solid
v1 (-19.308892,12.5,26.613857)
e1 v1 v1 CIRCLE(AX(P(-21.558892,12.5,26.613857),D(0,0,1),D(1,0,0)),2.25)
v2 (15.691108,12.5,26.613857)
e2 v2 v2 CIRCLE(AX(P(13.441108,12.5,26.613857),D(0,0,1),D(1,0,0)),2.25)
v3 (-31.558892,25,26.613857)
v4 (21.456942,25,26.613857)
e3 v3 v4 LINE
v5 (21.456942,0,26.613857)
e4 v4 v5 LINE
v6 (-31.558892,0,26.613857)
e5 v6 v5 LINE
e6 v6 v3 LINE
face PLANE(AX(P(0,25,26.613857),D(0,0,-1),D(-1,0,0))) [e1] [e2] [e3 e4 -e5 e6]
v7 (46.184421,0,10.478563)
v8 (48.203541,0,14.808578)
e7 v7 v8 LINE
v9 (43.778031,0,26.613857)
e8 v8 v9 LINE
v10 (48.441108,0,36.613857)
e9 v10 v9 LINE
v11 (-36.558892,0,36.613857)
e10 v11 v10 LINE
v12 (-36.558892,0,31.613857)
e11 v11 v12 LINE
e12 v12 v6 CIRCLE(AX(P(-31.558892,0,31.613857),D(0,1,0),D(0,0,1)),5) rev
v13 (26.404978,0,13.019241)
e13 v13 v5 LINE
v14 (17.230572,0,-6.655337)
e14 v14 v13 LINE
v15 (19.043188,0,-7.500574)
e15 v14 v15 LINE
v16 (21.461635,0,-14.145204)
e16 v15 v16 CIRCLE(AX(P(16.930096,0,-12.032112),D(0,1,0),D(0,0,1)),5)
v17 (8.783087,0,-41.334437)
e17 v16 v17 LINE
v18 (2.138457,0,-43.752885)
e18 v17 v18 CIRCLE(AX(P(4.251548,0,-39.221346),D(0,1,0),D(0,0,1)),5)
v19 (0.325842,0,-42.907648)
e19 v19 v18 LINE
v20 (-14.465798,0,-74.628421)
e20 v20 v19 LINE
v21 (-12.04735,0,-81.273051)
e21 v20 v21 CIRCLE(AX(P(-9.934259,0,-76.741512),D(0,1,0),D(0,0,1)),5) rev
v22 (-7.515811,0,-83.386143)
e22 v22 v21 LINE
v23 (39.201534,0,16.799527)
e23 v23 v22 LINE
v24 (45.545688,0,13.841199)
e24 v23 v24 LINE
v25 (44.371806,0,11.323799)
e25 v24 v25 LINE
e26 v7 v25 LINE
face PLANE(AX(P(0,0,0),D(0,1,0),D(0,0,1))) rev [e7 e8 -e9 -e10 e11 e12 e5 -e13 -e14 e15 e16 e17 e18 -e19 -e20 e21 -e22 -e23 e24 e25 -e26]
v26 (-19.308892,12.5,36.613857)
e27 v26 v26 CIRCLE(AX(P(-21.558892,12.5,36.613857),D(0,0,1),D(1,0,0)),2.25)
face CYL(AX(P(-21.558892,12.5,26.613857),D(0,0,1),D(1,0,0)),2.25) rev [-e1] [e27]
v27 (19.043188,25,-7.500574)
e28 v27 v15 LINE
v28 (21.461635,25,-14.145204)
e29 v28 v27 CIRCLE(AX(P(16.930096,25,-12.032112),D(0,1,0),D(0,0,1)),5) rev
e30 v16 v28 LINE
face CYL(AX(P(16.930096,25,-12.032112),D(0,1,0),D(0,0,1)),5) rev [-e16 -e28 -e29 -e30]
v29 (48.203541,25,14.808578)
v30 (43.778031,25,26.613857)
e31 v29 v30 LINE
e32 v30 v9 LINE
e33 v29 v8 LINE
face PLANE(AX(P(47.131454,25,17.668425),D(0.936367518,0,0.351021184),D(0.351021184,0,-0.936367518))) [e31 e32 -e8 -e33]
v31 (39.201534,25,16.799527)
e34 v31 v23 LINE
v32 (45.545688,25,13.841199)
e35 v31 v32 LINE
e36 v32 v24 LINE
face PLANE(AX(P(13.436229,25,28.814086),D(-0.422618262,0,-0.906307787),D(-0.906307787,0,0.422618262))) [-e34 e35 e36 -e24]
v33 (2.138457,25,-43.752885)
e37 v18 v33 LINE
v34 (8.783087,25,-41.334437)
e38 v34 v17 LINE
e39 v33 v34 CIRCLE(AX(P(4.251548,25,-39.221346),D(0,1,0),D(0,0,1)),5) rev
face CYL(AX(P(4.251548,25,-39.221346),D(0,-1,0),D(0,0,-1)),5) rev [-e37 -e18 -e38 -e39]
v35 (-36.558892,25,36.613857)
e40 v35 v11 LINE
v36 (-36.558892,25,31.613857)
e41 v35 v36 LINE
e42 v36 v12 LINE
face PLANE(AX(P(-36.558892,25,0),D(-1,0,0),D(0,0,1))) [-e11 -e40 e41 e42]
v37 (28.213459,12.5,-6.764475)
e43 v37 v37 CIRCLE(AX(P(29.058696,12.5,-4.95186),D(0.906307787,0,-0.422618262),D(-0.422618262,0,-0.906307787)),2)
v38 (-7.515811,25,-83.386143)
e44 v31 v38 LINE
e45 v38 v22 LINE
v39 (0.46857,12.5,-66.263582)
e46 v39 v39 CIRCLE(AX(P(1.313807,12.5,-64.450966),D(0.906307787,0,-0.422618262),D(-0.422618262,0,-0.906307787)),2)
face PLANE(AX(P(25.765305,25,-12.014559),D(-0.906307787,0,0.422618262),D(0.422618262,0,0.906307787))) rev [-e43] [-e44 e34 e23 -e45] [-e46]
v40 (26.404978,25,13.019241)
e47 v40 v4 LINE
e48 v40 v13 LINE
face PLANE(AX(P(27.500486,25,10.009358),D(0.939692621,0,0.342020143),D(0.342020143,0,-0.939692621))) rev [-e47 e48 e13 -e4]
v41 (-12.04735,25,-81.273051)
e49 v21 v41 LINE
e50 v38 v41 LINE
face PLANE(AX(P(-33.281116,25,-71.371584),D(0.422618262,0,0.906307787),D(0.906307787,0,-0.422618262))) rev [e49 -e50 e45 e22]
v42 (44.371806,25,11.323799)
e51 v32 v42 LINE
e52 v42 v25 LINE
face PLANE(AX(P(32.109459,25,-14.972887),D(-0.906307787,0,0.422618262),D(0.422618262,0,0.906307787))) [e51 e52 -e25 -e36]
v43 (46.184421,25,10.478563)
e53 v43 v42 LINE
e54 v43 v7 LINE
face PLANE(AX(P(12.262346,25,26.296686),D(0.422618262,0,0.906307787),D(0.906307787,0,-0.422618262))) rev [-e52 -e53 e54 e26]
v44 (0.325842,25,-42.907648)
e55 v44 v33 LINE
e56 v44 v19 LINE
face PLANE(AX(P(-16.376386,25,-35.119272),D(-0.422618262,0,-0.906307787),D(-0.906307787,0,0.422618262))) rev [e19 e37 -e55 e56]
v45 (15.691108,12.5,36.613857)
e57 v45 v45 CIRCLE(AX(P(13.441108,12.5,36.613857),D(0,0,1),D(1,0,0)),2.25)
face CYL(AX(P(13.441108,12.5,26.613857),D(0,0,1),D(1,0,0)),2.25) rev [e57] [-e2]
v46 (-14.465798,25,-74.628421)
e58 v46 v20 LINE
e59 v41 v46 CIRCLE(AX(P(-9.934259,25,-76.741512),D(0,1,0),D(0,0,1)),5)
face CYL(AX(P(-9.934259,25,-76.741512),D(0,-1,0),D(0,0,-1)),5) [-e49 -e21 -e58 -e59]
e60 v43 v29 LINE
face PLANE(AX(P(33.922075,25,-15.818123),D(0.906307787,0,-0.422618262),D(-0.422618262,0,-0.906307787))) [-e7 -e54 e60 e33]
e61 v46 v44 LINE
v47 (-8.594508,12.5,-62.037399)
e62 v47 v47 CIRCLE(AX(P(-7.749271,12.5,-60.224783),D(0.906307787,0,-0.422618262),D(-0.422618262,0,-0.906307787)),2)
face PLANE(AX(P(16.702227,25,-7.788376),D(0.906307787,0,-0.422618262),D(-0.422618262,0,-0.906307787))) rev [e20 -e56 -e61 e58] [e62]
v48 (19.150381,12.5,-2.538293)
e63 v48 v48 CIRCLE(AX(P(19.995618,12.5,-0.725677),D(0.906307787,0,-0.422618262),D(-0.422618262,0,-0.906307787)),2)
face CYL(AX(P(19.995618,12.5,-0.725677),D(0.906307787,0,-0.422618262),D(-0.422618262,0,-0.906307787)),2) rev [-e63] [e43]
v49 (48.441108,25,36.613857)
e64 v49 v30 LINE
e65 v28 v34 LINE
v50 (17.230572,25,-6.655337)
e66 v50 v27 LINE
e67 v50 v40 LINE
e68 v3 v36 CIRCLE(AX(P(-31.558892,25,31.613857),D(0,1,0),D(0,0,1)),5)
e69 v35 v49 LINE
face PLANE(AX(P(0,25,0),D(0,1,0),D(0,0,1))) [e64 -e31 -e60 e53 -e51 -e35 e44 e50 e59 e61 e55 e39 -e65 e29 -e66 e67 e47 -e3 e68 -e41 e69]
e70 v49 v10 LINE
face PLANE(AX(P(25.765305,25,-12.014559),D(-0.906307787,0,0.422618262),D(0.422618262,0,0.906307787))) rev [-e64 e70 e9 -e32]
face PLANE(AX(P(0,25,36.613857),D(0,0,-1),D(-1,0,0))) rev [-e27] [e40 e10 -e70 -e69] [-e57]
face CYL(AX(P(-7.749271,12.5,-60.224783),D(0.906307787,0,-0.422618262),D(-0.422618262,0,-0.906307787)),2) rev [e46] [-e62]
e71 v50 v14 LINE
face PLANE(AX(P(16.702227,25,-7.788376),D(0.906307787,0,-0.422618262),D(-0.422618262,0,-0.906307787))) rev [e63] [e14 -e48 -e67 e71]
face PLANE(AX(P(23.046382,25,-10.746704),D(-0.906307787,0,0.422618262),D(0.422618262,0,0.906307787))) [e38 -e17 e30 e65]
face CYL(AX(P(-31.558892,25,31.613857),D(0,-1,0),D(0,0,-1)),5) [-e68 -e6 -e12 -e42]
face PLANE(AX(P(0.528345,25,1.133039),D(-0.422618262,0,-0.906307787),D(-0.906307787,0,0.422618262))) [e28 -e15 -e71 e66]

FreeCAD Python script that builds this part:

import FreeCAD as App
import Part
import Sketcher

V = App.Vector
Q = App.Units.Quantity


def edges_at(feature, points):
    """Names of the edges that pass closest to the given points."""
    edges = feature.Shape.Edges
    near = lambda p: min(range(len(edges)), key=lambda i: edges[i].distToShape(Part.Vertex(*p))[0])
    return sorted({f"Edge{near(p) + 1}" for p in points})

doc = App.newDocument("Part")
params = doc.addObject("Spreadsheet::Sheet", "Params")
for row, (alias, value) in enumerate([
    ("sketch1_width", "85 mm"),
    ("sketch1_height", "10 mm"),
    ("sketch1_length", "2 mm"),
    ("sketch1_length2", "7 mm"),
    ("sketch1_length3", "10 mm"),
    ("pad1_length", "25 mm"),
    ("fillet_radius", "5 mm"),
    ("fillet2_radius", "5 mm"),
    ("fillet3_radius", "5 mm"),
    ("fillet4_radius", "5 mm"),
    ("sketch2_diameter", "4 mm"),
    ("pocket1_length", "10 mm"),
    ("sketch3_diameter", "4.5 mm"),
    ("pocket2_length", "10 mm"),
], start=1):
    params.set(f"A{row}", alias)
    params.set(f"B{row}", "=" + value)
    params.setAlias(f"B{row}", alias)

body = doc.addObject("PartDesign::Body", "Body")

sketch1 = body.newObject("Sketcher::SketchObject", "Sketch")
sketch1.AttachmentSupport = (doc.getObject("XZ_Plane"), [""])
sketch1.MapMode = "FlatFace"
sketch1.addGeometry([
    Part.LineSegment(V(-36.6, 26.6, 0), V(-36.6, 36.6, 0)),
    Part.LineSegment(V(-36.6, 36.6, 0), V(48.4, 36.6, 0)),
    Part.LineSegment(V(48.4, 36.6, 0), V(43.8, 26.6, 0)),
    Part.LineSegment(V(43.8, 26.6, 0), V(48.2, 14.8, 0)),
    Part.LineSegment(V(48.2, 14.8, 0), V(46.2, 10.5, 0)),
    Part.LineSegment(V(46.2, 10.5, 0), V(44.4, 11.3, 0)),
    Part.LineSegment(V(44.4, 11.3, 0), V(45.5, 13.8, 0)),
    Part.LineSegment(V(45.5, 13.8, 0), V(39.2, 16.8, 0)),
    Part.LineSegment(V(39.2, 16.8, 0), V(-7.5, -83.4, 0)),
    Part.LineSegment(V(-7.5, -83.4, 0), V(-16.6, -79.2, 0)),
    Part.LineSegment(V(-16.6, -79.2, 0), V(0.3, -42.9, 0)),
    Part.LineSegment(V(0.3, -42.9, 0), V(6.7, -45.9, 0)),
    Part.LineSegment(V(6.7, -45.9, 0), V(23.6, -9.6, 0)),
    Part.LineSegment(V(23.6, -9.6, 0), V(17.2, -6.7, 0)),
    Part.LineSegment(V(17.2, -6.7, 0), V(26.4, 13, 0)),
    Part.LineSegment(V(26.4, 13, 0), V(21.5, 26.6, 0)),
    Part.LineSegment(V(21.5, 26.6, 0), V(-36.6, 26.6, 0)),
], False)
sketch1.addConstraint([
    Sketcher.Constraint("Coincident", 0, 2, 1, 1),
    Sketcher.Constraint("Coincident", 1, 2, 2, 1),
    Sketcher.Constraint("Coincident", 2, 2, 3, 1),
    Sketcher.Constraint("Coincident", 3, 2, 4, 1),
    Sketcher.Constraint("Coincident", 4, 2, 5, 1),
    Sketcher.Constraint("Coincident", 5, 2, 6, 1),
    Sketcher.Constraint("Coincident", 6, 2, 7, 1),
    Sketcher.Constraint("Coincident", 7, 2, 8, 1),
    Sketcher.Constraint("Coincident", 8, 2, 9, 1),
    Sketcher.Constraint("Coincident", 9, 2, 10, 1),
    Sketcher.Constraint("Coincident", 10, 2, 11, 1),
    Sketcher.Constraint("Coincident", 11, 2, 12, 1),
    Sketcher.Constraint("Coincident", 12, 2, 13, 1),
    Sketcher.Constraint("Coincident", 13, 2, 14, 1),
    Sketcher.Constraint("Coincident", 14, 2, 15, 1),
    Sketcher.Constraint("Coincident", 15, 2, 16, 1),
    Sketcher.Constraint("Coincident", 16, 2, 0, 1),
    Sketcher.Constraint("Vertical", 0),
    Sketcher.Constraint("Horizontal", 1),
    Sketcher.Constraint("Horizontal", 16),
    Sketcher.Constraint("Parallel", 2, 4),
    Sketcher.Constraint("Perpendicular", 4, 5),
    Sketcher.Constraint("Perpendicular", 5, 6),
    Sketcher.Constraint("Perpendicular", 6, 7),
    Sketcher.Constraint("Perpendicular", 7, 8),
    Sketcher.Constraint("Perpendicular", 8, 9),
    Sketcher.Constraint("Perpendicular", 9, 10),
    Sketcher.Constraint("Perpendicular", 10, 11),
    Sketcher.Constraint("Perpendicular", 11, 12),
    Sketcher.Constraint("Perpendicular", 12, 13),
    Sketcher.Constraint("Perpendicular", 13, 14),
    Sketcher.Constraint("Horizontal", 2, 2, 15, 2),
    Sketcher.Constraint("Equal", 7, 11),
    Sketcher.Constraint("Equal", 10, 12),
    Sketcher.Constraint("Equal", 11, 13),
    Sketcher.Constraint("DistanceX", 1, 1, 1, 2, 85.0),
    Sketcher.Constraint("DistanceY", 0, 1, 0, 2, 10.0),
    Sketcher.Constraint("Angle", 2, Q("-115 deg")),
    Sketcher.Constraint("Angle", 15, Q("110 deg")),
    Sketcher.Constraint("Distance", 5, 2.0),
    Sketcher.Constraint("Distance", 7, 7.0),
    Sketcher.Constraint("Distance", 9, 10.0),
    Sketcher.Constraint("Distance", 10, 40.0),
    Sketcher.Constraint("DistanceY", -1, 1, 5, 2, 11.323799),
    Sketcher.Constraint("DistanceY", -1, 1, 6, 2, 13.841199),
    Sketcher.Constraint("DistanceX", 8, 2, 6, 2, 53.0615),
    Sketcher.Constraint("Distance", 15, 14.467089),
    Sketcher.Constraint("DistanceX", 16, 2, 16, 1, 58.015834),
    Sketcher.Constraint("DistanceX", -1, 1, 2, 2, 43.778031),
    Sketcher.Constraint("DistanceX", -1, 1, 3, 2, 48.203541),
    Sketcher.Constraint("DistanceY", -1, 1, 3, 2, 14.808578),
])
sketch1.setExpression("Constraints[35]", "Params.sketch1_width")
sketch1.setExpression("Constraints[36]", "Params.sketch1_height")
sketch1.setExpression("Constraints[39]", "Params.sketch1_length")
sketch1.setExpression("Constraints[40]", "Params.sketch1_length2")
sketch1.setExpression("Constraints[41]", "Params.sketch1_length3")
pad1 = body.newObject("PartDesign::Pad", "Pad")
pad1.Profile = sketch1
pad1.setExpression("Length", "Params.pad1_length")
pad1.Reversed = True
doc.recompute()

fillet = body.newObject("PartDesign::Fillet", "Fillet")
fillet.Base = (pad1, edges_at(pad1, [(-16.579, 12.5, -79.16)]))
fillet.setExpression("Radius", "Params.fillet_radius")
doc.recompute()

fillet2 = body.newObject("PartDesign::Fillet", "Fillet001")
fillet2.Base = (fillet, edges_at(fillet, [(-36.559, 12.5, 26.614)]))
fillet2.setExpression("Radius", "Params.fillet2_radius")
doc.recompute()

fillet3 = body.newObject("PartDesign::Fillet", "Fillet002")
fillet3.Base = (fillet2, edges_at(fillet2, [(23.575, 12.5, -9.614)]))
fillet3.setExpression("Radius", "Params.fillet3_radius")
doc.recompute()

fillet4 = body.newObject("PartDesign::Fillet", "Fillet003")
fillet4.Base = (fillet3, edges_at(fillet3, [(6.67, 12.5, -45.866)]))
fillet4.setExpression("Radius", "Params.fillet4_radius")

sketch2 = body.newObject("Sketcher::SketchObject", "Sketch001")
sketch2.Placement = App.Placement(V(25.765305, 0, -12.014559), App.Rotation(V(-0.422618262, 0, -0.906307787), V(0, 1, 0), V(0.906307787, 0, -0.422618262), "ZXY"))
sketch2.addGeometry([
    Part.Circle(V(57.9, 12.5, 0), V(0, 0, 1), 2),
    Part.Circle(V(-7.8, 12.5, 0), V(0, 0, 1), 2),
], False)
sketch2.addConstraint([
    Sketcher.Constraint("Equal", 0, 1),
    Sketcher.Constraint("Horizontal", 0, 3, 1, 3),
    Sketcher.Constraint("Diameter", 0, 4.0),
    Sketcher.Constraint("DistanceY", -1, 1, 0, 3, 12.5),
    Sketcher.Constraint("DistanceX", 1, 3, 0, 3, 65.65),
    Sketcher.Constraint("DistanceX", -1, 1, 0, 3, 57.857174),
])
sketch2.setExpression("Constraints[2]", "Params.sketch2_diameter")
pocket1 = body.newObject("PartDesign::Pocket", "Pocket")
pocket1.Profile = sketch2
pocket1.setExpression("Length", "Params.pocket1_length")

sketch3 = body.newObject("Sketcher::SketchObject", "Sketch002")
sketch3.AttachmentSupport = (doc.getObject("XY_Plane"), [""])
sketch3.MapMode = "FlatFace"
sketch3.AttachmentOffset = App.Placement(V(0, 0, 36.613857), App.Rotation())
sketch3.addGeometry([
    Part.Circle(V(-21.6, 12.5, 0), V(0, 0, 1), 2.2),
    Part.Circle(V(13.4, 12.5, 0), V(0, 0, 1), 2.2),
], False)
sketch3.addConstraint([
    Sketcher.Constraint("Equal", 0, 1),
    Sketcher.Constraint("Horizontal", 0, 3, 1, 3),
    Sketcher.Constraint("Diameter", 0, 4.5),
    Sketcher.Constraint("DistanceX", 0, 3, 1, 3, 35.0),
    Sketcher.Constraint("DistanceY", -1, 1, 0, 3, 12.5),
    Sketcher.Constraint("DistanceX", 0, 3, -1, 1, 21.558892),
])
sketch3.setExpression("Constraints[2]", "Params.sketch3_diameter")
pocket2 = body.newObject("PartDesign::Pocket", "Pocket001")
pocket2.Profile = sketch3
pocket2.setExpression("Length", "Params.pocket2_length")

doc.recompute()
